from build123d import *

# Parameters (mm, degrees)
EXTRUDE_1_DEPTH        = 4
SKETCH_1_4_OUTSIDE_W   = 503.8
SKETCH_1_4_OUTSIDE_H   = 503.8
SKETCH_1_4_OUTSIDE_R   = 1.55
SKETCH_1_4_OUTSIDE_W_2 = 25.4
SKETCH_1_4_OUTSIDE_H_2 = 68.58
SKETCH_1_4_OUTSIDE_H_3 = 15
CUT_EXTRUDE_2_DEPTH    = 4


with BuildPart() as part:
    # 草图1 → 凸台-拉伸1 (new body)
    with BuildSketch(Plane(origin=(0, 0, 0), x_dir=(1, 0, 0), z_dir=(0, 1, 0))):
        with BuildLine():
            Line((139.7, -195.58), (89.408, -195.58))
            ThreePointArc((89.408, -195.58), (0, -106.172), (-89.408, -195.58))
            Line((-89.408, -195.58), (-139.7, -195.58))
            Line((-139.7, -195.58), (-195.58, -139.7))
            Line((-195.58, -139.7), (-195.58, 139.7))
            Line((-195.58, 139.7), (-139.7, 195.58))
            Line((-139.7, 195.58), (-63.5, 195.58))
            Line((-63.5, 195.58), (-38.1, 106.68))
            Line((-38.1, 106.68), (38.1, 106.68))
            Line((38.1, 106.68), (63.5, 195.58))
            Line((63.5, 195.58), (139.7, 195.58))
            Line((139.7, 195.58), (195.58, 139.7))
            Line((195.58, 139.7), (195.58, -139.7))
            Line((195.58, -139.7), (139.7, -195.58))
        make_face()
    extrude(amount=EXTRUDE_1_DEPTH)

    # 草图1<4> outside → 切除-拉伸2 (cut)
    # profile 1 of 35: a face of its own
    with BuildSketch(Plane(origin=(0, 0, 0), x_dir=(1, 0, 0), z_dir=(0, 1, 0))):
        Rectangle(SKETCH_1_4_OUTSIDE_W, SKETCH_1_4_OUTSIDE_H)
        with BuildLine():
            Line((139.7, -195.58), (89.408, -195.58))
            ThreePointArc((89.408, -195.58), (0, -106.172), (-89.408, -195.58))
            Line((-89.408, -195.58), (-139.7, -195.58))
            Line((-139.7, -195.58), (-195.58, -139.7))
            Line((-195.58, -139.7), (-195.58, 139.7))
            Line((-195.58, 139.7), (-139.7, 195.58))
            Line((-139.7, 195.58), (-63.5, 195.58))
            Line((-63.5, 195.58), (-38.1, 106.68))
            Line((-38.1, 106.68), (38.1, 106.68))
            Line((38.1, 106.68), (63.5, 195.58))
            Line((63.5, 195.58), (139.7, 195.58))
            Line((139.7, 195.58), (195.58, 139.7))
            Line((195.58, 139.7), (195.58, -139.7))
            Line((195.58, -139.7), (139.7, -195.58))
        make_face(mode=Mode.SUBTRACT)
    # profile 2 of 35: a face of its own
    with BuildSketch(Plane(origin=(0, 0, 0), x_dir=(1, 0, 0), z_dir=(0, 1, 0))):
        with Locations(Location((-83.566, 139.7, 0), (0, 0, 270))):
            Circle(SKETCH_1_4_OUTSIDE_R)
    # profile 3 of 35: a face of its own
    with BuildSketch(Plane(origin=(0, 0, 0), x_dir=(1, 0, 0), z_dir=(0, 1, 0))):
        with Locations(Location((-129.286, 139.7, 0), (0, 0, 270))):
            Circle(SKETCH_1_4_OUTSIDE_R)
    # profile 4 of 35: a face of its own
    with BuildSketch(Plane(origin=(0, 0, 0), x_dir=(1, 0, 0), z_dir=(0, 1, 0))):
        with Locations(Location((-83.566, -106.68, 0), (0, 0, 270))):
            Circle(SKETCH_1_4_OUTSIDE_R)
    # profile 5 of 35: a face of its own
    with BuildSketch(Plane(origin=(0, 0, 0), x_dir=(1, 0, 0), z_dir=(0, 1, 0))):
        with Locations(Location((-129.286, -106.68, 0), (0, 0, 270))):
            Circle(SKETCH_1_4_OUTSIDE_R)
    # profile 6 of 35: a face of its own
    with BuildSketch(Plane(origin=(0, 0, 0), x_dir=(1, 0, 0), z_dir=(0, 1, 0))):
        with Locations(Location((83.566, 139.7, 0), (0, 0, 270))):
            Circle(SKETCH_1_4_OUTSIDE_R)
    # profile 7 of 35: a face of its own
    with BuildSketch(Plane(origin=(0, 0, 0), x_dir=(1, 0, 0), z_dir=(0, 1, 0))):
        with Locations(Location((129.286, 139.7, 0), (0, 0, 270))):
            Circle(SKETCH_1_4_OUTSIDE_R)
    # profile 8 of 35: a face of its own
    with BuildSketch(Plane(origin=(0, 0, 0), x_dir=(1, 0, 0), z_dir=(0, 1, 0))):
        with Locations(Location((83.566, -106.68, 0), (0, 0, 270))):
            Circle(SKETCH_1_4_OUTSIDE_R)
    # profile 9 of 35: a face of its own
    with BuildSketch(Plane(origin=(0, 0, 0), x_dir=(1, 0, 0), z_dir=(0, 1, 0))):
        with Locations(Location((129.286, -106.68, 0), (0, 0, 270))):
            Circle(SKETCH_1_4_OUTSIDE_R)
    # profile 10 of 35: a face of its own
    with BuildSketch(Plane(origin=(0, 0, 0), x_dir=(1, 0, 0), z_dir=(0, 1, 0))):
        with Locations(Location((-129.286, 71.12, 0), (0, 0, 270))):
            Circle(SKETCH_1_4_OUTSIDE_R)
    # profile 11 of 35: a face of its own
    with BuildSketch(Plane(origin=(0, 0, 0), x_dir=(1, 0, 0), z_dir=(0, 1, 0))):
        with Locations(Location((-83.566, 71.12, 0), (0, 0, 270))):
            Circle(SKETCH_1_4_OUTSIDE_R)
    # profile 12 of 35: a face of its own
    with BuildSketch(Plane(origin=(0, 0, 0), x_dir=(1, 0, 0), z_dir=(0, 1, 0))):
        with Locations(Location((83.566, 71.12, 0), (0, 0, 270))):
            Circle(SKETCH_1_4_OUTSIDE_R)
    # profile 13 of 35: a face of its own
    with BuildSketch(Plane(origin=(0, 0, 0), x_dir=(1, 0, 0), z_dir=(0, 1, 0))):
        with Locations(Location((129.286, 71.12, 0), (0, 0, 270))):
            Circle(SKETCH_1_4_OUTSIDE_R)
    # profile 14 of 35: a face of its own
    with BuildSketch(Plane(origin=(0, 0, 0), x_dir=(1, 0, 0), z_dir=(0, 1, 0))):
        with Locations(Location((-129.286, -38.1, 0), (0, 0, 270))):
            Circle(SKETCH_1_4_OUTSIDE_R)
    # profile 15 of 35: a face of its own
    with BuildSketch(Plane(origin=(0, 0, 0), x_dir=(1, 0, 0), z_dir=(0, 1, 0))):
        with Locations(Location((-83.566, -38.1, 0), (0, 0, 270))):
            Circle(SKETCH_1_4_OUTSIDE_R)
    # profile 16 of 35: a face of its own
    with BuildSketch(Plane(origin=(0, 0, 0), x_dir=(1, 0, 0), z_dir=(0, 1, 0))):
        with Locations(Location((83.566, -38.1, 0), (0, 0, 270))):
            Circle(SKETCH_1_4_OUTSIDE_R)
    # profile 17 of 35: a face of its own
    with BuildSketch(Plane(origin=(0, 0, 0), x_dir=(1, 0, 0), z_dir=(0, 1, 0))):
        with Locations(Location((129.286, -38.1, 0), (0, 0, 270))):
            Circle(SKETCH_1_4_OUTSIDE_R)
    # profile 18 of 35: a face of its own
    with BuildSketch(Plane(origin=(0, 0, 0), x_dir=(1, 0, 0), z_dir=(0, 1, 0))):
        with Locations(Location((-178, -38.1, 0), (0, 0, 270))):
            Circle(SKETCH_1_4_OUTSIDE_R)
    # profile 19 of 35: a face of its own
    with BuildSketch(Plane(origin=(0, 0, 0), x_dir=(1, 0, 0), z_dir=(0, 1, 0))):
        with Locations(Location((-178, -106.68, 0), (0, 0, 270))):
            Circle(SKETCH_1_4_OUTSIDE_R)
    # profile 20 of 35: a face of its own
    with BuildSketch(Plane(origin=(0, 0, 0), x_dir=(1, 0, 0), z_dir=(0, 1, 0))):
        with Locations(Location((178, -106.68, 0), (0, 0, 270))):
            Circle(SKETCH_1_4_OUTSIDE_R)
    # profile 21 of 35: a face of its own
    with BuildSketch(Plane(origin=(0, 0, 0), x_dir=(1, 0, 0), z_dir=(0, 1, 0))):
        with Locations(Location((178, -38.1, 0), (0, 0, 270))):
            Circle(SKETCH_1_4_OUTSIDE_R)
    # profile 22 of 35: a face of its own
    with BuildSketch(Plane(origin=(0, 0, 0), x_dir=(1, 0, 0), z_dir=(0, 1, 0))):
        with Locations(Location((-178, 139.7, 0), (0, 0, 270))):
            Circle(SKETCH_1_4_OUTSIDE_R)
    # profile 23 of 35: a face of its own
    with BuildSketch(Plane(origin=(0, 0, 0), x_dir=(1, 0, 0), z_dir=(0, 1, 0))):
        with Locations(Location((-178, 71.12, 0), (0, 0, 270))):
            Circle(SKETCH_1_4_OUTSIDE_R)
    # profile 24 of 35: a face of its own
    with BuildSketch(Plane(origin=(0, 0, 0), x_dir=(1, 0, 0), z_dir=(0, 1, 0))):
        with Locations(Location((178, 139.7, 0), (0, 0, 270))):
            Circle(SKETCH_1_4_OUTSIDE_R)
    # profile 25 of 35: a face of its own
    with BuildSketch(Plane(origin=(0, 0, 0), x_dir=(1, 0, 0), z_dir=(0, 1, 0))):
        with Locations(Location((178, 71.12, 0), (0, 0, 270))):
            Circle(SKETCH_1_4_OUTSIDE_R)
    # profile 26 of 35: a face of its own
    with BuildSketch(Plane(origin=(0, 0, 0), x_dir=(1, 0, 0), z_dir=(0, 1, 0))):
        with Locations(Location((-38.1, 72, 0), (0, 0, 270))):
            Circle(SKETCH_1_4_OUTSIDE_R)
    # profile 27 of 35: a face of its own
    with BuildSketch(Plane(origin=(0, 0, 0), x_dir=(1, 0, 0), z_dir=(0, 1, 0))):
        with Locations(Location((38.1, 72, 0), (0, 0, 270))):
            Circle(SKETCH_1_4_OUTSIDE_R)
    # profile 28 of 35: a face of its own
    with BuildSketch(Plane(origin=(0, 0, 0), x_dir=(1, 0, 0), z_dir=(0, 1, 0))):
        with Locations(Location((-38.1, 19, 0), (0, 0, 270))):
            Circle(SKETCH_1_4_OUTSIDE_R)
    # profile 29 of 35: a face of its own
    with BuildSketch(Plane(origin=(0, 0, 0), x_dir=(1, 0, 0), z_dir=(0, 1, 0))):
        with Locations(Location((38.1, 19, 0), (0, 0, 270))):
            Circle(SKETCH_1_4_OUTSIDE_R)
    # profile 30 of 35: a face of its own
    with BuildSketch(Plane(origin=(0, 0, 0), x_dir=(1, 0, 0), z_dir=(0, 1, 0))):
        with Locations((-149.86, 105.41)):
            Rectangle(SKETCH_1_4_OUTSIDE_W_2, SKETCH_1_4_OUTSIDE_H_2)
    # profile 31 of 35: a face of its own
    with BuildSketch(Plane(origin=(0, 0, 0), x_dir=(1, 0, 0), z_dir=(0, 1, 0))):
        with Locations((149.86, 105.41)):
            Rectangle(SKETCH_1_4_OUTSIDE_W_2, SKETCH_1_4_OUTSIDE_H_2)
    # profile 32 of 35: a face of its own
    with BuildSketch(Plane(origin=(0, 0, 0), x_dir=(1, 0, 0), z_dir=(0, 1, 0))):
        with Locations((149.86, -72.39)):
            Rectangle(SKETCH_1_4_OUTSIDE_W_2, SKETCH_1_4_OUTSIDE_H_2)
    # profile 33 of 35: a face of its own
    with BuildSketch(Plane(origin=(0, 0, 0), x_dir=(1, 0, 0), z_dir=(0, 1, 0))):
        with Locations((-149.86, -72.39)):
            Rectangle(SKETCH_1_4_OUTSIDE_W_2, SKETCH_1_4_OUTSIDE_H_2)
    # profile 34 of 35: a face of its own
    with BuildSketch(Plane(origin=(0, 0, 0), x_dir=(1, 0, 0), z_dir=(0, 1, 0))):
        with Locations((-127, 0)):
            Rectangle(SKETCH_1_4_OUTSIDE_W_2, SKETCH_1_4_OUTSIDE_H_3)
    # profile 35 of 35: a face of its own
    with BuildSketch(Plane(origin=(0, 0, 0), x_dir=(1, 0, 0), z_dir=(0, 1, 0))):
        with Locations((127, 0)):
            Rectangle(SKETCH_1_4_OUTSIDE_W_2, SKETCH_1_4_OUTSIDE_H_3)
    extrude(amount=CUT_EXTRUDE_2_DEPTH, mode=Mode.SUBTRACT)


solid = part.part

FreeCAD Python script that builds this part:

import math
import FreeCAD as App
import Part
import Sketcher
Q = App.Units.Quantity


def add_polygon(sketch, points):
    """Adds a closed chain of lines whose ends are joined by coincident constraints."""
    first, n = sketch.GeometryCount, len(points)
    for a, b in zip(points, points[1:] + points[:1]):
        sketch.addGeometry(Part.LineSegment(App.Vector(*a, 0), App.Vector(*b, 0)), False)
    for i in range(n):
        sketch.addConstraint(Sketcher.Constraint("Coincident", first + i, 2, first + (i + 1) % n, 1))

doc = App.newDocument("Part")
params = doc.addObject("Spreadsheet::Sheet", "Params")
for row, (alias, value) in enumerate([
    ("sketch1_width", "3 in"),
    ("sketch1_height", "11 in"),
    ("sketch1_radius", "3.52 in"),
    ("pad1_length", "4 mm"),
    ("sketch2_width", "3 in"),
    ("sketch2_width2", "1 in"),
    ("sketch2_height", "11 in"),
    ("sketch2_radius", "3.52 in"),
    ("sketch2_height2", "2.7 in"),
    ("pocket1_length", "4 mm"),
], start=1):
    params.set(f"A{row}", alias)
    params.set(f"B{row}", "=" + value)
    params.setAlias(f"B{row}", alias)

body = doc.addObject("PartDesign::Body", "Body")

# Sketch on XZ plane
sketch1 = body.newObject("Sketcher::SketchObject", "Sketch")
sketch1.AttachmentSupport = (doc.getObject("XZ_Plane"), [""])
sketch1.MapMode = "FlatFace"
sketch1.addGeometry([
    Part.LineSegment(App.Vector(89.408, 195.58, 0), App.Vector(139.7, 195.58, 0)),  # 0
    Part.LineSegment(App.Vector(139.7, 195.58, 0), App.Vector(195.58, 139.7, 0)),  # 1
    Part.LineSegment(App.Vector(195.58, 139.7, 0), App.Vector(195.58, -139.7, 0)),  # 2
    Part.LineSegment(App.Vector(195.58, -139.7, 0), App.Vector(139.7, -195.58, 0)),  # 3
    Part.LineSegment(App.Vector(139.7, -195.58, 0), App.Vector(63.5, -195.58, 0)),  # 4
    Part.LineSegment(App.Vector(63.5, -195.58, 0), App.Vector(38.1, -106.68, 0)),  # 5
    Part.LineSegment(App.Vector(38.1, -106.68, 0), App.Vector(-38.1, -106.68, 0)),  # 6
    Part.LineSegment(App.Vector(-38.1, -106.68, 0), App.Vector(-63.5, -195.58, 0)),  # 7
    Part.LineSegment(App.Vector(-63.5, -195.58, 0), App.Vector(-139.7, -195.58, 0)),  # 8
    Part.LineSegment(App.Vector(-139.7, -195.58, 0), App.Vector(-195.58, -139.7, 0)),  # 9
    Part.LineSegment(App.Vector(-195.58, -139.7, 0), App.Vector(-195.58, 139.7, 0)),  # 10
    Part.LineSegment(App.Vector(-195.58, 139.7, 0), App.Vector(-139.7, 195.58, 0)),  # 11
    Part.LineSegment(App.Vector(-139.7, 195.58, 0), App.Vector(-89.408, 195.58, 0)),  # 12
    Part.ArcOfCircle(Part.Circle(App.Vector(0, 195.58, 0), App.Vector(0, 0, 1), 89.408), math.radians(180), math.radians(360)),  # 13
], False)
sketch1.addConstraint([
    Sketcher.Constraint("Coincident", 0, 2, 1, 1),
    Sketcher.Constraint("Coincident", 1, 2, 2, 1),
    Sketcher.Constraint("Coincident", 2, 2, 3, 1),
    Sketcher.Constraint("Coincident", 3, 2, 4, 1),
    Sketcher.Constraint("Coincident", 4, 2, 5, 1),
    Sketcher.Constraint("Coincident", 5, 2, 6, 1),
    Sketcher.Constraint("Coincident", 6, 2, 7, 1),
    Sketcher.Constraint("Coincident", 7, 2, 8, 1),
    Sketcher.Constraint("Coincident", 8, 2, 9, 1),
    Sketcher.Constraint("Coincident", 9, 2, 10, 1),
    Sketcher.Constraint("Coincident", 10, 2, 11, 1),
    Sketcher.Constraint("Coincident", 11, 2, 12, 1),
    Sketcher.Constraint("Coincident", 12, 2, 13, 1),
    Sketcher.Constraint("Coincident", 13, 2, 0, 1),
    Sketcher.Constraint("Horizontal", 0),
    Sketcher.Constraint("Vertical", 2),
    Sketcher.Constraint("Horizontal", 4),
    Sketcher.Constraint("Horizontal", 6),
    Sketcher.Constraint("Horizontal", 8),
    Sketcher.Constraint("Vertical", 10),
    Sketcher.Constraint("Horizontal", 12),
    Sketcher.Constraint("Symmetric", 0, 2, 8, 2, -1, 1),
    Sketcher.Constraint("Symmetric", 1, 2, 9, 2, -1, 1),
    Sketcher.Constraint("Symmetric", 3, 2, 11, 2, -1, 1),
    Sketcher.Constraint("Symmetric", 4, 2, 7, 2, -2),
    Sketcher.Constraint("PointOnObject", 13, 3, -2),
    Sketcher.Constraint("Perpendicular", 1, 3),
    Sketcher.Constraint("Perpendicular", 9, 11),
    Sketcher.Constraint("Horizontal", 13, 3, 0, 2),
    Sketcher.Constraint("Horizontal", 2, 2, 9, 2),
    Sketcher.Constraint("Vertical", 0, 2, 3, 2),
    Sketcher.Constraint("Equal", 4, 6),
    Sketcher.Constraint("Equal", 5, 7),
    Sketcher.Constraint("DistanceX", 4, 2, 4, 1, Q("3 in")),
    Sketcher.Constraint("DistanceY", 2, 2, 2, 1, Q("11 in")),
    Sketcher.Constraint("Radius", 13, Q("3.52 in")),
    Sketcher.Constraint("DistanceX", 5, 2, 4, 2, Q("1 in")),
    Sketcher.Constraint("DistanceY", -1, 1, 13, 3, Q("7.7 in")),
    Sketcher.Constraint("DistanceY", 5, 2, -1, 1, Q("4.2 in")),
])
sketch1.setExpression("Constraints[33]", "Params.sketch1_width")
sketch1.setExpression("Constraints[34]", "Params.sketch1_height")
sketch1.setExpression("Constraints[35]", "Params.sketch1_radius")
pad1 = body.newObject("PartDesign::Pad", "Pad")
pad1.Profile = sketch1
pad1.setExpression("Length", "Params.pad1_length")
pad1.Reversed = True

# Sketch on XZ plane
sketch2 = body.newObject("Sketcher::SketchObject", "Sketch001")
sketch2.AttachmentSupport = (doc.getObject("XZ_Plane"), [""])
sketch2.MapMode = "FlatFace"
add_polygon(sketch2, [(-251.9, -251.9), (-251.9, 251.9), (251.9, 251.9), (251.9, -251.9)])  # lines 0-3
sketch2.addGeometry(Part.LineSegment(App.Vector(195.58, 139.7, 0), App.Vector(139.7, 195.58, 0)), False)  # 4
sketch2.addGeometry(Part.LineSegment(App.Vector(139.7, 195.58, 0), App.Vector(89.408, 195.58, 0)), False)  # 5
sketch2.addGeometry(Part.ArcOfCircle(Part.Circle(App.Vector(0, 195.58, 0), App.Vector(0, 0, 1), 89.408), math.radians(180), math.radians(360)), False)  # 6
sketch2.addGeometry(Part.LineSegment(App.Vector(-89.408, 195.58, 0), App.Vector(-139.7, 195.58, 0)), False)  # 7
sketch2.addGeometry(Part.LineSegment(App.Vector(-139.7, 195.58, 0), App.Vector(-195.58, 139.7, 0)), False)  # 8
sketch2.addGeometry(Part.LineSegment(App.Vector(-195.58, 139.7, 0), App.Vector(-195.58, -139.7, 0)), False)  # 9
sketch2.addGeometry(Part.LineSegment(App.Vector(-195.58, -139.7, 0), App.Vector(-139.7, -195.58, 0)), False)  # 10
sketch2.addGeometry(Part.LineSegment(App.Vector(-139.7, -195.58, 0), App.Vector(-63.5, -195.58, 0)), False)  # 11
sketch2.addGeometry(Part.LineSegment(App.Vector(-63.5, -195.58, 0), App.Vector(-38.1, -106.68, 0)), False)  # 12
sketch2.addGeometry(Part.LineSegment(App.Vector(-38.1, -106.68, 0), App.Vector(38.1, -106.68, 0)), False)  # 13
sketch2.addGeometry(Part.LineSegment(App.Vector(38.1, -106.68, 0), App.Vector(63.5, -195.58, 0)), False)  # 14
sketch2.addGeometry(Part.LineSegment(App.Vector(63.5, -195.58, 0), App.Vector(139.7, -195.58, 0)), False)  # 15
sketch2.addGeometry(Part.LineSegment(App.Vector(139.7, -195.58, 0), App.Vector(195.58, -139.7, 0)), False)  # 16
sketch2.addGeometry(Part.LineSegment(App.Vector(195.58, -139.7, 0), App.Vector(195.58, 139.7, 0)), False)  # 17
sketch2.addGeometry(Part.Circle(App.Vector(-83.566, -139.7, 0), App.Vector(0, 0, 1), 1.55), False)  # 18
sketch2.addGeometry(Part.Circle(App.Vector(-129.286, -139.7, 0), App.Vector(0, 0, 1), 1.55), False)  # 19
sketch2.addGeometry(Part.Circle(App.Vector(-83.566, 106.68, 0), App.Vector(0, 0, 1), 1.55), False)  # 20
sketch2.addGeometry(Part.Circle(App.Vector(-129.286, 106.68, 0), App.Vector(0, 0, 1), 1.55), False)  # 21
sketch2.addGeometry(Part.Circle(App.Vector(83.566, -139.7, 0), App.Vector(0, 0, 1), 1.55), False)  # 22
sketch2.addGeometry(Part.Circle(App.Vector(129.286, -139.7, 0), App.Vector(0, 0, 1), 1.55), False)  # 23
sketch2.addGeometry(Part.Circle(App.Vector(83.566, 106.68, 0), App.Vector(0, 0, 1), 1.55), False)  # 24
sketch2.addGeometry(Part.Circle(App.Vector(129.286, 106.68, 0), App.Vector(0, 0, 1), 1.55), False)  # 25
sketch2.addGeometry(Part.Circle(App.Vector(-129.286, -71.12, 0), App.Vector(0, 0, 1), 1.55), False)  # 26
sketch2.addGeometry(Part.Circle(App.Vector(-83.566, -71.12, 0), App.Vector(0, 0, 1), 1.55), False)  # 27
sketch2.addGeometry(Part.Circle(App.Vector(83.566, -71.12, 0), App.Vector(0, 0, 1), 1.55), False)  # 28
sketch2.addGeometry(Part.Circle(App.Vector(129.286, -71.12, 0), App.Vector(0, 0, 1), 1.55), False)  # 29
sketch2.addGeometry(Part.Circle(App.Vector(-129.286, 38.1, 0), App.Vector(0, 0, 1), 1.55), False)  # 30
sketch2.addGeometry(Part.Circle(App.Vector(-83.566, 38.1, 0), App.Vector(0, 0, 1), 1.55), False)  # 31
sketch2.addGeometry(Part.Circle(App.Vector(83.566, 38.1, 0), App.Vector(0, 0, 1), 1.55), False)  # 32
sketch2.addGeometry(Part.Circle(App.Vector(129.286, 38.1, 0), App.Vector(0, 0, 1), 1.55), False)  # 33
sketch2.addGeometry(Part.Circle(App.Vector(-178, 38.1, 0), App.Vector(0, 0, 1), 1.55), False)  # 34
sketch2.addGeometry(Part.Circle(App.Vector(-178, 106.68, 0), App.Vector(0, 0, 1), 1.55), False)  # 35
sketch2.addGeometry(Part.Circle(App.Vector(178, 106.68, 0), App.Vector(0, 0, 1), 1.55), False)  # 36
sketch2.addGeometry(Part.Circle(App.Vector(178, 38.1, 0), App.Vector(0, 0, 1), 1.55), False)  # 37
sketch2.addGeometry(Part.Circle(App.Vector(-178, -139.7, 0), App.Vector(0, 0, 1), 1.55), False)  # 38
sketch2.addGeometry(Part.Circle(App.Vector(-178, -71.12, 0), App.Vector(0, 0, 1), 1.55), False)  # 39
sketch2.addGeometry(Part.Circle(App.Vector(178, -139.7, 0), App.Vector(0, 0, 1), 1.55), False)  # 40
sketch2.addGeometry(Part.Circle(App.Vector(178, -71.12, 0), App.Vector(0, 0, 1), 1.55), False)  # 41
sketch2.addGeometry(Part.Circle(App.Vector(-38.1, -72, 0), App.Vector(0, 0, 1), 1.55), False)  # 42
sketch2.addGeometry(Part.Circle(App.Vector(38.1, -72, 0), App.Vector(0, 0, 1), 1.55), False)  # 43
sketch2.addGeometry(Part.Circle(App.Vector(-38.1, -19, 0), App.Vector(0, 0, 1), 1.55), False)  # 44
sketch2.addGeometry(Part.Circle(App.Vector(38.1, -19, 0), App.Vector(0, 0, 1), 1.55), False)  # 45
add_polygon(sketch2, [(-162.56, -139.7), (-162.56, -71.12), (-137.16, -71.12), (-137.16, -139.7)])  # lines 46-49
add_polygon(sketch2, [(137.16, -139.7), (137.16, -71.12), (162.56, -71.12), (162.56, -139.7)])  # lines 50-53
add_polygon(sketch2, [(137.16, 38.1), (137.16, 106.68), (162.56, 106.68), (162.56, 38.1)])  # lines 54-57
add_polygon(sketch2, [(-162.56, 38.1), (-162.56, 106.68), (-137.16, 106.68), (-137.16, 38.1)])  # lines 58-61
add_polygon(sketch2, [(-139.7, -7.5), (-139.7, 7.5), (-114.3, 7.5), (-114.3, -7.5)])  # lines 62-65
add_polygon(sketch2, [(114.3, -7.5), (114.3, 7.5), (139.7, 7.5), (139.7, -7.5)])  # lines 66-69
sketch2.addConstraint([
    Sketcher.Constraint("Coincident", 4, 2, 5, 1),
    Sketcher.Constraint("Coincident", 5, 2, 6, 2),
    Sketcher.Constraint("Coincident", 6, 1, 7, 1),
    Sketcher.Constraint("Coincident", 7, 2, 8, 1),
    Sketcher.Constraint("Coincident", 8, 2, 9, 1),
    Sketcher.Constraint("Coincident", 9, 2, 10, 1),
    Sketcher.Constraint("Coincident", 10, 2, 11, 1),
    Sketcher.Constraint("Coincident", 11, 2, 12, 1),
    Sketcher.Constraint("Coincident", 12, 2, 13, 1),
    Sketcher.Constraint("Coincident", 13, 2, 14, 1),
    Sketcher.Constraint("Coincident", 14, 2, 15, 1),
    Sketcher.Constraint("Coincident", 15, 2, 16, 1),
    Sketcher.Constraint("Coincident", 16, 2, 17, 1),
    Sketcher.Constraint("Coincident", 17, 2, 4, 1),
    Sketcher.Constraint("Vertical", 0),
    Sketcher.Constraint("Horizontal", 1),
    Sketcher.Constraint("Vertical", 2),
    Sketcher.Constraint("Horizontal", 3),
    Sketcher.Constraint("Horizontal", 5),
    Sketcher.Constraint("Horizontal", 7),
    Sketcher.Constraint("Vertical", 9),
    Sketcher.Constraint("Horizontal", 11),
    Sketcher.Constraint("Horizontal", 13),
    Sketcher.Constraint("Horizontal", 15),
    Sketcher.Constraint("Vertical", 17),
    Sketcher.Constraint("Vertical", 46),
    Sketcher.Constraint("Horizontal", 47),
    Sketcher.Constraint("Vertical", 48),
    Sketcher.Constraint("Horizontal", 49),
    Sketcher.Constraint("Vertical", 50),
    Sketcher.Constraint("Horizontal", 51),
    Sketcher.Constraint("Vertical", 52),
    Sketcher.Constraint("Horizontal", 53),
    Sketcher.Constraint("Vertical", 54),
    Sketcher.Constraint("Horizontal", 55),
    Sketcher.Constraint("Vertical", 56),
    Sketcher.Constraint("Horizontal", 57),
    Sketcher.Constraint("Vertical", 58),
    Sketcher.Constraint("Horizontal", 59),
    Sketcher.Constraint("Vertical", 60),
    Sketcher.Constraint("Horizontal", 61),
    Sketcher.Constraint("Vertical", 62),
    Sketcher.Constraint("Horizontal", 63),
    Sketcher.Constraint("Vertical", 64),
    Sketcher.Constraint("Horizontal", 65),
    Sketcher.Constraint("Vertical", 66),
    Sketcher.Constraint("Horizontal", 67),
    Sketcher.Constraint("Vertical", 68),
    Sketcher.Constraint("Horizontal", 69),
    Sketcher.Constraint("Equal", 18, 19),
    Sketcher.Constraint("Equal", 19, 20),
    Sketcher.Constraint("Equal", 20, 21),
    Sketcher.Constraint("Equal", 21, 22),
    Sketcher.Constraint("Equal", 22, 23),
    Sketcher.Constraint("Equal", 23, 24),
    Sketcher.Constraint("Equal", 24, 25),
    Sketcher.Constraint("Equal", 25, 26),
    Sketcher.Constraint("Equal", 26, 27),
    Sketcher.Constraint("Equal", 27, 28),
    Sketcher.Constraint("Equal", 28, 29),
    Sketcher.Constraint("Equal", 29, 30),
    Sketcher.Constraint("Equal", 30, 31),
    Sketcher.Constraint("Equal", 31, 32),
    Sketcher.Constraint("Equal", 32, 33),
    Sketcher.Constraint("Equal", 33, 34),
    Sketcher.Constraint("Equal", 34, 35),
    Sketcher.Constraint("Equal", 35, 36),
    Sketcher.Constraint("Equal", 36, 37),
    Sketcher.Constraint("Equal", 37, 38),
    Sketcher.Constraint("Equal", 38, 39),
    Sketcher.Constraint("Equal", 39, 40),
    Sketcher.Constraint("Equal", 40, 41),
    Sketcher.Constraint("Equal", 41, 42),
    Sketcher.Constraint("Equal", 42, 43),
    Sketcher.Constraint("Equal", 43, 44),
    Sketcher.Constraint("Equal", 44, 45),
    Sketcher.Constraint("Symmetric", 0, 2, 2, 2, -1, 1),
    Sketcher.Constraint("Symmetric", 4, 2, 10, 2, -1, 1),
    Sketcher.Constraint("Symmetric", 7, 2, 15, 2, -1, 1),
    Sketcher.Constraint("Symmetric", 8, 2, 16, 2, -1, 1),
    Sketcher.Constraint("Symmetric", 64, 2, 66, 2, -1, 1),
    Sketcher.Constraint("Symmetric", 62, 2, 68, 2, -1, 1),
    Sketcher.Constraint("Symmetric", 18, 3, 22, 3, -2),
    Sketcher.Constraint("Symmetric", 19, 3, 23, 3, -2),
    Sketcher.Constraint("Symmetric", 20, 3, 24, 3, -2),
    Sketcher.Constraint("Symmetric", 21, 3, 25, 3, -2),
    Sketcher.Constraint("Symmetric", 27, 3, 28, 3, -2),
    Sketcher.Constraint("Symmetric", 26, 3, 29, 3, -2),
    Sketcher.Constraint("Symmetric", 31, 3, 32, 3, -2),
    Sketcher.Constraint("Symmetric", 30, 3, 33, 3, -2),
    Sketcher.Constraint("Symmetric", 35, 3, 36, 3, -2),
    Sketcher.Constraint("Symmetric", 34, 3, 37, 3, -2),
    Sketcher.Constraint("Symmetric", 38, 3, 40, 3, -2),
    Sketcher.Constraint("Symmetric", 39, 3, 41, 3, -2),
    Sketcher.Constraint("Symmetric", 42, 3, 43, 3, -2),
    Sketcher.Constraint("Symmetric", 44, 3, 45, 3, -2),
    Sketcher.Constraint("Symmetric", 5, 2, 6, 1, -2),
    Sketcher.Constraint("Symmetric", 47, 2, 50, 2, -2),
    Sketcher.Constraint("Symmetric", 49, 2, 52, 2, -2),
    Sketcher.Constraint("Symmetric", 55, 2, 58, 2, -2),
    Sketcher.Constraint("Symmetric", 57, 2, 60, 2, -2),
    Sketcher.Constraint("Perpendicular", 4, 8),
    Sketcher.Constraint("Perpendicular", 8, 10),
    Sketcher.Constraint("Horizontal", 18, 3, 19, 3),
    Sketcher.Constraint("Horizontal", 20, 3, 21, 3),
    Sketcher.Constraint("Horizontal", 26, 3, 27, 3),
    Sketcher.Constraint("Horizontal", 30, 3, 31, 3),
    Sketcher.Constraint("Horizontal", 33, 3, 34, 3),
    Sketcher.Constraint("Horizontal", 25, 3, 35, 3),
    Sketcher.Constraint("Horizontal", 23, 3, 38, 3),
    Sketcher.Constraint("Horizontal", 29, 3, 39, 3),
    Sketcher.Constraint("Horizontal", 6, 3, 4, 2),
    Sketcher.Constraint("Horizontal", 40, 3, 9, 2),
    Sketcher.Constraint("Horizontal", 9, 2, 16, 2),
    Sketcher.Constraint("Horizontal", 41, 3, 46, 2),
    Sketcher.Constraint("Horizontal", 16, 2, 48, 2),
    Sketcher.Constraint("Horizontal", 36, 3, 54, 2),
    Sketcher.Constraint("Horizontal", 37, 3, 56, 2),
    Sketcher.Constraint("Horizontal", 63, 2, 66, 2),
    Sketcher.Constraint("Vertical", 18, 3, 20, 3),
    Sketcher.Constraint("Vertical", 19, 3, 21, 3),
    Sketcher.Constraint("Vertical", 21, 3, 26, 3),
    Sketcher.Constraint("Vertical", 20, 3, 27, 3),
    Sketcher.Constraint("Vertical", 26, 3, 30, 3),
    Sketcher.Constraint("Vertical", 27, 3, 31, 3),
    Sketcher.Constraint("Vertical", 34, 3, 35, 3),
    Sketcher.Constraint("Vertical", 35, 3, 38, 3),
    Sketcher.Constraint("Vertical", 38, 3, 39, 3),
    Sketcher.Constraint("Vertical", 42, 3, 44, 3),
    Sketcher.Constraint("Vertical", 7, 2, 10, 2),
    Sketcher.Constraint("Vertical", 44, 3, 12, 2),
    Sketcher.Constraint("Vertical", 45, 3, 13, 2),
    Sketcher.Constraint("Vertical", 53, 2, 54, 2),
    Sketcher.Constraint("Vertical", 52, 2, 55, 2),
    Sketcher.Constraint("Vertical", 10, 2, 62, 2),
    Sketcher.Constraint("Equal", 11, 13),
    Sketcher.Constraint("Equal", 13, 15),
    Sketcher.Constraint("Equal", 61, 63),
    Sketcher.Constraint("Equal", 3, 0),
    Sketcher.Constraint("Equal", 52, 54),
    Sketcher.Constraint("DistanceX", 11, 1, 11, 2, Q("3 in")),
    Sketcher.Constraint("DistanceX", 47, 1, 47, 2, Q("1 in")),
    Sketcher.Constraint("DistanceY", 9, 2, 9, 1, Q("11 in")),
    Sketcher.Constraint("Radius", 6, Q("3.52 in")),
    Sketcher.Constraint("DistanceY", 46, 1, 46, 2, Q("2.7 in")),
    Sketcher.Constraint("DistanceX", 5, 2, 5, 1, Q("1.98 in")),
    Sketcher.Constraint("DistanceY", -1, 1, 6, 3, Q("7.7 in")),
    Sketcher.Constraint("DistanceY", -1, 1, 20, 3, Q("4.2 in")),
    Sketcher.Constraint("DistanceY", 12, 2, -1, 1, Q("4.2 in")),
    Sketcher.Constraint("DistanceX", 46, 2, -1, 1, Q("6.4 in")),
    Sketcher.Constraint("Diameter", 18, Q("3.1 mm")),
    Sketcher.Constraint("DistanceX", 18, 3, -1, 1, Q("3.29 in")),
    Sketcher.Constraint("DistanceX", 19, 3, -1, 1, Q("5.09 in")),
    Sketcher.Constraint("DistanceX", 1, 1, 1, 2, Q("503.8 mm")),
    Sketcher.Constraint("DistanceY", 62, 1, 62, 2, Q("15 mm")),
    Sketcher.Constraint("DistanceX", 34, 3, -1, 1, Q("178 mm")),
    Sketcher.Constraint("DistanceY", 42, 3, -1, 1, Q("72 mm")),
    Sketcher.Constraint("DistanceY", 44, 3, -1, 1, Q("19 mm")),
])
sketch2.setExpression("Constraints[168]", "Params.sketch2_width")
sketch2.setExpression("Constraints[169]", "Params.sketch2_width2")
sketch2.setExpression("Constraints[170]", "Params.sketch2_height")
sketch2.setExpression("Constraints[171]", "Params.sketch2_radius")
sketch2.setExpression("Constraints[172]", "Params.sketch2_height2")
pocket1 = body.newObject("PartDesign::Pocket", "Pocket")
pocket1.Profile = sketch2
pocket1.setExpression("Length", "Params.pocket1_length")

doc.recompute()
